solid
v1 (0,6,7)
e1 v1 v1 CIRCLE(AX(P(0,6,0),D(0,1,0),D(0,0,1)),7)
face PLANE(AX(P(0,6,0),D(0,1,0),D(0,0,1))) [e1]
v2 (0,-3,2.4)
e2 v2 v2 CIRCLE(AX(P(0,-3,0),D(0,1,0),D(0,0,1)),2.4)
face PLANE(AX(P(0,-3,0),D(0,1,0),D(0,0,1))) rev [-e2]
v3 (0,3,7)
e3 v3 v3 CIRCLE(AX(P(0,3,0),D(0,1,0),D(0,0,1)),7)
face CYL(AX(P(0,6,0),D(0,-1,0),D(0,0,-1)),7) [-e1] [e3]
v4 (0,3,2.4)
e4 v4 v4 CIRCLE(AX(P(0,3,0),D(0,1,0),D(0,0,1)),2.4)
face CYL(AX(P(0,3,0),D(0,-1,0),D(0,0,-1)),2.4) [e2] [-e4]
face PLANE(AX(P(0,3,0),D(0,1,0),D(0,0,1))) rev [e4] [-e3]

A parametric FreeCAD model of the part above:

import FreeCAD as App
import Part
import Sketcher
Q = App.Units.Quantity

doc = App.newDocument("Part")
body = doc.addObject("PartDesign::Body", "Body")

sketch1 = body.newObject("Sketcher::SketchObject", "Sketch")
sketch1.AttachmentSupport = (doc.getObject("XZ_Plane"), [""])
sketch1.MapMode = "FlatFace"
sketch1.addGeometry(Part.Circle(App.Vector(0, 0, 0), App.Vector(0, 0, 1), 2.4), False)
sketch1.addConstraint([
    Sketcher.Constraint("Coincident", 0, 3, -1, 1),
    Sketcher.Constraint("Diameter", 0, Q("4.8 mm")),
])
pad1 = body.newObject("PartDesign::Pad", "Pad")
pad1.Profile = sketch1
pad1.Length = 6
pad1.Midplane = True

sketch2 = body.newObject("Sketcher::SketchObject", "Sketch001")
sketch2.AttachmentSupport = (doc.getObject("XZ_Plane"), [""])
sketch2.MapMode = "FlatFace"
sketch2.AttachmentOffset = App.Placement(App.Vector(0, 0, -3), App.Rotation())
sketch2.addGeometry(Part.Circle(App.Vector(0, 0, 0), App.Vector(0, 0, 1), 7), False)
sketch2.addConstraint([
    Sketcher.Constraint("Coincident", 0, 3, -1, 1),
    Sketcher.Constraint("Diameter", 0, Q("14 mm")),
])
pad2 = body.newObject("PartDesign::Pad", "Pad001")
pad2.Profile = sketch2
pad2.Length = 3
pad2.Reversed = True

doc.recompute()
